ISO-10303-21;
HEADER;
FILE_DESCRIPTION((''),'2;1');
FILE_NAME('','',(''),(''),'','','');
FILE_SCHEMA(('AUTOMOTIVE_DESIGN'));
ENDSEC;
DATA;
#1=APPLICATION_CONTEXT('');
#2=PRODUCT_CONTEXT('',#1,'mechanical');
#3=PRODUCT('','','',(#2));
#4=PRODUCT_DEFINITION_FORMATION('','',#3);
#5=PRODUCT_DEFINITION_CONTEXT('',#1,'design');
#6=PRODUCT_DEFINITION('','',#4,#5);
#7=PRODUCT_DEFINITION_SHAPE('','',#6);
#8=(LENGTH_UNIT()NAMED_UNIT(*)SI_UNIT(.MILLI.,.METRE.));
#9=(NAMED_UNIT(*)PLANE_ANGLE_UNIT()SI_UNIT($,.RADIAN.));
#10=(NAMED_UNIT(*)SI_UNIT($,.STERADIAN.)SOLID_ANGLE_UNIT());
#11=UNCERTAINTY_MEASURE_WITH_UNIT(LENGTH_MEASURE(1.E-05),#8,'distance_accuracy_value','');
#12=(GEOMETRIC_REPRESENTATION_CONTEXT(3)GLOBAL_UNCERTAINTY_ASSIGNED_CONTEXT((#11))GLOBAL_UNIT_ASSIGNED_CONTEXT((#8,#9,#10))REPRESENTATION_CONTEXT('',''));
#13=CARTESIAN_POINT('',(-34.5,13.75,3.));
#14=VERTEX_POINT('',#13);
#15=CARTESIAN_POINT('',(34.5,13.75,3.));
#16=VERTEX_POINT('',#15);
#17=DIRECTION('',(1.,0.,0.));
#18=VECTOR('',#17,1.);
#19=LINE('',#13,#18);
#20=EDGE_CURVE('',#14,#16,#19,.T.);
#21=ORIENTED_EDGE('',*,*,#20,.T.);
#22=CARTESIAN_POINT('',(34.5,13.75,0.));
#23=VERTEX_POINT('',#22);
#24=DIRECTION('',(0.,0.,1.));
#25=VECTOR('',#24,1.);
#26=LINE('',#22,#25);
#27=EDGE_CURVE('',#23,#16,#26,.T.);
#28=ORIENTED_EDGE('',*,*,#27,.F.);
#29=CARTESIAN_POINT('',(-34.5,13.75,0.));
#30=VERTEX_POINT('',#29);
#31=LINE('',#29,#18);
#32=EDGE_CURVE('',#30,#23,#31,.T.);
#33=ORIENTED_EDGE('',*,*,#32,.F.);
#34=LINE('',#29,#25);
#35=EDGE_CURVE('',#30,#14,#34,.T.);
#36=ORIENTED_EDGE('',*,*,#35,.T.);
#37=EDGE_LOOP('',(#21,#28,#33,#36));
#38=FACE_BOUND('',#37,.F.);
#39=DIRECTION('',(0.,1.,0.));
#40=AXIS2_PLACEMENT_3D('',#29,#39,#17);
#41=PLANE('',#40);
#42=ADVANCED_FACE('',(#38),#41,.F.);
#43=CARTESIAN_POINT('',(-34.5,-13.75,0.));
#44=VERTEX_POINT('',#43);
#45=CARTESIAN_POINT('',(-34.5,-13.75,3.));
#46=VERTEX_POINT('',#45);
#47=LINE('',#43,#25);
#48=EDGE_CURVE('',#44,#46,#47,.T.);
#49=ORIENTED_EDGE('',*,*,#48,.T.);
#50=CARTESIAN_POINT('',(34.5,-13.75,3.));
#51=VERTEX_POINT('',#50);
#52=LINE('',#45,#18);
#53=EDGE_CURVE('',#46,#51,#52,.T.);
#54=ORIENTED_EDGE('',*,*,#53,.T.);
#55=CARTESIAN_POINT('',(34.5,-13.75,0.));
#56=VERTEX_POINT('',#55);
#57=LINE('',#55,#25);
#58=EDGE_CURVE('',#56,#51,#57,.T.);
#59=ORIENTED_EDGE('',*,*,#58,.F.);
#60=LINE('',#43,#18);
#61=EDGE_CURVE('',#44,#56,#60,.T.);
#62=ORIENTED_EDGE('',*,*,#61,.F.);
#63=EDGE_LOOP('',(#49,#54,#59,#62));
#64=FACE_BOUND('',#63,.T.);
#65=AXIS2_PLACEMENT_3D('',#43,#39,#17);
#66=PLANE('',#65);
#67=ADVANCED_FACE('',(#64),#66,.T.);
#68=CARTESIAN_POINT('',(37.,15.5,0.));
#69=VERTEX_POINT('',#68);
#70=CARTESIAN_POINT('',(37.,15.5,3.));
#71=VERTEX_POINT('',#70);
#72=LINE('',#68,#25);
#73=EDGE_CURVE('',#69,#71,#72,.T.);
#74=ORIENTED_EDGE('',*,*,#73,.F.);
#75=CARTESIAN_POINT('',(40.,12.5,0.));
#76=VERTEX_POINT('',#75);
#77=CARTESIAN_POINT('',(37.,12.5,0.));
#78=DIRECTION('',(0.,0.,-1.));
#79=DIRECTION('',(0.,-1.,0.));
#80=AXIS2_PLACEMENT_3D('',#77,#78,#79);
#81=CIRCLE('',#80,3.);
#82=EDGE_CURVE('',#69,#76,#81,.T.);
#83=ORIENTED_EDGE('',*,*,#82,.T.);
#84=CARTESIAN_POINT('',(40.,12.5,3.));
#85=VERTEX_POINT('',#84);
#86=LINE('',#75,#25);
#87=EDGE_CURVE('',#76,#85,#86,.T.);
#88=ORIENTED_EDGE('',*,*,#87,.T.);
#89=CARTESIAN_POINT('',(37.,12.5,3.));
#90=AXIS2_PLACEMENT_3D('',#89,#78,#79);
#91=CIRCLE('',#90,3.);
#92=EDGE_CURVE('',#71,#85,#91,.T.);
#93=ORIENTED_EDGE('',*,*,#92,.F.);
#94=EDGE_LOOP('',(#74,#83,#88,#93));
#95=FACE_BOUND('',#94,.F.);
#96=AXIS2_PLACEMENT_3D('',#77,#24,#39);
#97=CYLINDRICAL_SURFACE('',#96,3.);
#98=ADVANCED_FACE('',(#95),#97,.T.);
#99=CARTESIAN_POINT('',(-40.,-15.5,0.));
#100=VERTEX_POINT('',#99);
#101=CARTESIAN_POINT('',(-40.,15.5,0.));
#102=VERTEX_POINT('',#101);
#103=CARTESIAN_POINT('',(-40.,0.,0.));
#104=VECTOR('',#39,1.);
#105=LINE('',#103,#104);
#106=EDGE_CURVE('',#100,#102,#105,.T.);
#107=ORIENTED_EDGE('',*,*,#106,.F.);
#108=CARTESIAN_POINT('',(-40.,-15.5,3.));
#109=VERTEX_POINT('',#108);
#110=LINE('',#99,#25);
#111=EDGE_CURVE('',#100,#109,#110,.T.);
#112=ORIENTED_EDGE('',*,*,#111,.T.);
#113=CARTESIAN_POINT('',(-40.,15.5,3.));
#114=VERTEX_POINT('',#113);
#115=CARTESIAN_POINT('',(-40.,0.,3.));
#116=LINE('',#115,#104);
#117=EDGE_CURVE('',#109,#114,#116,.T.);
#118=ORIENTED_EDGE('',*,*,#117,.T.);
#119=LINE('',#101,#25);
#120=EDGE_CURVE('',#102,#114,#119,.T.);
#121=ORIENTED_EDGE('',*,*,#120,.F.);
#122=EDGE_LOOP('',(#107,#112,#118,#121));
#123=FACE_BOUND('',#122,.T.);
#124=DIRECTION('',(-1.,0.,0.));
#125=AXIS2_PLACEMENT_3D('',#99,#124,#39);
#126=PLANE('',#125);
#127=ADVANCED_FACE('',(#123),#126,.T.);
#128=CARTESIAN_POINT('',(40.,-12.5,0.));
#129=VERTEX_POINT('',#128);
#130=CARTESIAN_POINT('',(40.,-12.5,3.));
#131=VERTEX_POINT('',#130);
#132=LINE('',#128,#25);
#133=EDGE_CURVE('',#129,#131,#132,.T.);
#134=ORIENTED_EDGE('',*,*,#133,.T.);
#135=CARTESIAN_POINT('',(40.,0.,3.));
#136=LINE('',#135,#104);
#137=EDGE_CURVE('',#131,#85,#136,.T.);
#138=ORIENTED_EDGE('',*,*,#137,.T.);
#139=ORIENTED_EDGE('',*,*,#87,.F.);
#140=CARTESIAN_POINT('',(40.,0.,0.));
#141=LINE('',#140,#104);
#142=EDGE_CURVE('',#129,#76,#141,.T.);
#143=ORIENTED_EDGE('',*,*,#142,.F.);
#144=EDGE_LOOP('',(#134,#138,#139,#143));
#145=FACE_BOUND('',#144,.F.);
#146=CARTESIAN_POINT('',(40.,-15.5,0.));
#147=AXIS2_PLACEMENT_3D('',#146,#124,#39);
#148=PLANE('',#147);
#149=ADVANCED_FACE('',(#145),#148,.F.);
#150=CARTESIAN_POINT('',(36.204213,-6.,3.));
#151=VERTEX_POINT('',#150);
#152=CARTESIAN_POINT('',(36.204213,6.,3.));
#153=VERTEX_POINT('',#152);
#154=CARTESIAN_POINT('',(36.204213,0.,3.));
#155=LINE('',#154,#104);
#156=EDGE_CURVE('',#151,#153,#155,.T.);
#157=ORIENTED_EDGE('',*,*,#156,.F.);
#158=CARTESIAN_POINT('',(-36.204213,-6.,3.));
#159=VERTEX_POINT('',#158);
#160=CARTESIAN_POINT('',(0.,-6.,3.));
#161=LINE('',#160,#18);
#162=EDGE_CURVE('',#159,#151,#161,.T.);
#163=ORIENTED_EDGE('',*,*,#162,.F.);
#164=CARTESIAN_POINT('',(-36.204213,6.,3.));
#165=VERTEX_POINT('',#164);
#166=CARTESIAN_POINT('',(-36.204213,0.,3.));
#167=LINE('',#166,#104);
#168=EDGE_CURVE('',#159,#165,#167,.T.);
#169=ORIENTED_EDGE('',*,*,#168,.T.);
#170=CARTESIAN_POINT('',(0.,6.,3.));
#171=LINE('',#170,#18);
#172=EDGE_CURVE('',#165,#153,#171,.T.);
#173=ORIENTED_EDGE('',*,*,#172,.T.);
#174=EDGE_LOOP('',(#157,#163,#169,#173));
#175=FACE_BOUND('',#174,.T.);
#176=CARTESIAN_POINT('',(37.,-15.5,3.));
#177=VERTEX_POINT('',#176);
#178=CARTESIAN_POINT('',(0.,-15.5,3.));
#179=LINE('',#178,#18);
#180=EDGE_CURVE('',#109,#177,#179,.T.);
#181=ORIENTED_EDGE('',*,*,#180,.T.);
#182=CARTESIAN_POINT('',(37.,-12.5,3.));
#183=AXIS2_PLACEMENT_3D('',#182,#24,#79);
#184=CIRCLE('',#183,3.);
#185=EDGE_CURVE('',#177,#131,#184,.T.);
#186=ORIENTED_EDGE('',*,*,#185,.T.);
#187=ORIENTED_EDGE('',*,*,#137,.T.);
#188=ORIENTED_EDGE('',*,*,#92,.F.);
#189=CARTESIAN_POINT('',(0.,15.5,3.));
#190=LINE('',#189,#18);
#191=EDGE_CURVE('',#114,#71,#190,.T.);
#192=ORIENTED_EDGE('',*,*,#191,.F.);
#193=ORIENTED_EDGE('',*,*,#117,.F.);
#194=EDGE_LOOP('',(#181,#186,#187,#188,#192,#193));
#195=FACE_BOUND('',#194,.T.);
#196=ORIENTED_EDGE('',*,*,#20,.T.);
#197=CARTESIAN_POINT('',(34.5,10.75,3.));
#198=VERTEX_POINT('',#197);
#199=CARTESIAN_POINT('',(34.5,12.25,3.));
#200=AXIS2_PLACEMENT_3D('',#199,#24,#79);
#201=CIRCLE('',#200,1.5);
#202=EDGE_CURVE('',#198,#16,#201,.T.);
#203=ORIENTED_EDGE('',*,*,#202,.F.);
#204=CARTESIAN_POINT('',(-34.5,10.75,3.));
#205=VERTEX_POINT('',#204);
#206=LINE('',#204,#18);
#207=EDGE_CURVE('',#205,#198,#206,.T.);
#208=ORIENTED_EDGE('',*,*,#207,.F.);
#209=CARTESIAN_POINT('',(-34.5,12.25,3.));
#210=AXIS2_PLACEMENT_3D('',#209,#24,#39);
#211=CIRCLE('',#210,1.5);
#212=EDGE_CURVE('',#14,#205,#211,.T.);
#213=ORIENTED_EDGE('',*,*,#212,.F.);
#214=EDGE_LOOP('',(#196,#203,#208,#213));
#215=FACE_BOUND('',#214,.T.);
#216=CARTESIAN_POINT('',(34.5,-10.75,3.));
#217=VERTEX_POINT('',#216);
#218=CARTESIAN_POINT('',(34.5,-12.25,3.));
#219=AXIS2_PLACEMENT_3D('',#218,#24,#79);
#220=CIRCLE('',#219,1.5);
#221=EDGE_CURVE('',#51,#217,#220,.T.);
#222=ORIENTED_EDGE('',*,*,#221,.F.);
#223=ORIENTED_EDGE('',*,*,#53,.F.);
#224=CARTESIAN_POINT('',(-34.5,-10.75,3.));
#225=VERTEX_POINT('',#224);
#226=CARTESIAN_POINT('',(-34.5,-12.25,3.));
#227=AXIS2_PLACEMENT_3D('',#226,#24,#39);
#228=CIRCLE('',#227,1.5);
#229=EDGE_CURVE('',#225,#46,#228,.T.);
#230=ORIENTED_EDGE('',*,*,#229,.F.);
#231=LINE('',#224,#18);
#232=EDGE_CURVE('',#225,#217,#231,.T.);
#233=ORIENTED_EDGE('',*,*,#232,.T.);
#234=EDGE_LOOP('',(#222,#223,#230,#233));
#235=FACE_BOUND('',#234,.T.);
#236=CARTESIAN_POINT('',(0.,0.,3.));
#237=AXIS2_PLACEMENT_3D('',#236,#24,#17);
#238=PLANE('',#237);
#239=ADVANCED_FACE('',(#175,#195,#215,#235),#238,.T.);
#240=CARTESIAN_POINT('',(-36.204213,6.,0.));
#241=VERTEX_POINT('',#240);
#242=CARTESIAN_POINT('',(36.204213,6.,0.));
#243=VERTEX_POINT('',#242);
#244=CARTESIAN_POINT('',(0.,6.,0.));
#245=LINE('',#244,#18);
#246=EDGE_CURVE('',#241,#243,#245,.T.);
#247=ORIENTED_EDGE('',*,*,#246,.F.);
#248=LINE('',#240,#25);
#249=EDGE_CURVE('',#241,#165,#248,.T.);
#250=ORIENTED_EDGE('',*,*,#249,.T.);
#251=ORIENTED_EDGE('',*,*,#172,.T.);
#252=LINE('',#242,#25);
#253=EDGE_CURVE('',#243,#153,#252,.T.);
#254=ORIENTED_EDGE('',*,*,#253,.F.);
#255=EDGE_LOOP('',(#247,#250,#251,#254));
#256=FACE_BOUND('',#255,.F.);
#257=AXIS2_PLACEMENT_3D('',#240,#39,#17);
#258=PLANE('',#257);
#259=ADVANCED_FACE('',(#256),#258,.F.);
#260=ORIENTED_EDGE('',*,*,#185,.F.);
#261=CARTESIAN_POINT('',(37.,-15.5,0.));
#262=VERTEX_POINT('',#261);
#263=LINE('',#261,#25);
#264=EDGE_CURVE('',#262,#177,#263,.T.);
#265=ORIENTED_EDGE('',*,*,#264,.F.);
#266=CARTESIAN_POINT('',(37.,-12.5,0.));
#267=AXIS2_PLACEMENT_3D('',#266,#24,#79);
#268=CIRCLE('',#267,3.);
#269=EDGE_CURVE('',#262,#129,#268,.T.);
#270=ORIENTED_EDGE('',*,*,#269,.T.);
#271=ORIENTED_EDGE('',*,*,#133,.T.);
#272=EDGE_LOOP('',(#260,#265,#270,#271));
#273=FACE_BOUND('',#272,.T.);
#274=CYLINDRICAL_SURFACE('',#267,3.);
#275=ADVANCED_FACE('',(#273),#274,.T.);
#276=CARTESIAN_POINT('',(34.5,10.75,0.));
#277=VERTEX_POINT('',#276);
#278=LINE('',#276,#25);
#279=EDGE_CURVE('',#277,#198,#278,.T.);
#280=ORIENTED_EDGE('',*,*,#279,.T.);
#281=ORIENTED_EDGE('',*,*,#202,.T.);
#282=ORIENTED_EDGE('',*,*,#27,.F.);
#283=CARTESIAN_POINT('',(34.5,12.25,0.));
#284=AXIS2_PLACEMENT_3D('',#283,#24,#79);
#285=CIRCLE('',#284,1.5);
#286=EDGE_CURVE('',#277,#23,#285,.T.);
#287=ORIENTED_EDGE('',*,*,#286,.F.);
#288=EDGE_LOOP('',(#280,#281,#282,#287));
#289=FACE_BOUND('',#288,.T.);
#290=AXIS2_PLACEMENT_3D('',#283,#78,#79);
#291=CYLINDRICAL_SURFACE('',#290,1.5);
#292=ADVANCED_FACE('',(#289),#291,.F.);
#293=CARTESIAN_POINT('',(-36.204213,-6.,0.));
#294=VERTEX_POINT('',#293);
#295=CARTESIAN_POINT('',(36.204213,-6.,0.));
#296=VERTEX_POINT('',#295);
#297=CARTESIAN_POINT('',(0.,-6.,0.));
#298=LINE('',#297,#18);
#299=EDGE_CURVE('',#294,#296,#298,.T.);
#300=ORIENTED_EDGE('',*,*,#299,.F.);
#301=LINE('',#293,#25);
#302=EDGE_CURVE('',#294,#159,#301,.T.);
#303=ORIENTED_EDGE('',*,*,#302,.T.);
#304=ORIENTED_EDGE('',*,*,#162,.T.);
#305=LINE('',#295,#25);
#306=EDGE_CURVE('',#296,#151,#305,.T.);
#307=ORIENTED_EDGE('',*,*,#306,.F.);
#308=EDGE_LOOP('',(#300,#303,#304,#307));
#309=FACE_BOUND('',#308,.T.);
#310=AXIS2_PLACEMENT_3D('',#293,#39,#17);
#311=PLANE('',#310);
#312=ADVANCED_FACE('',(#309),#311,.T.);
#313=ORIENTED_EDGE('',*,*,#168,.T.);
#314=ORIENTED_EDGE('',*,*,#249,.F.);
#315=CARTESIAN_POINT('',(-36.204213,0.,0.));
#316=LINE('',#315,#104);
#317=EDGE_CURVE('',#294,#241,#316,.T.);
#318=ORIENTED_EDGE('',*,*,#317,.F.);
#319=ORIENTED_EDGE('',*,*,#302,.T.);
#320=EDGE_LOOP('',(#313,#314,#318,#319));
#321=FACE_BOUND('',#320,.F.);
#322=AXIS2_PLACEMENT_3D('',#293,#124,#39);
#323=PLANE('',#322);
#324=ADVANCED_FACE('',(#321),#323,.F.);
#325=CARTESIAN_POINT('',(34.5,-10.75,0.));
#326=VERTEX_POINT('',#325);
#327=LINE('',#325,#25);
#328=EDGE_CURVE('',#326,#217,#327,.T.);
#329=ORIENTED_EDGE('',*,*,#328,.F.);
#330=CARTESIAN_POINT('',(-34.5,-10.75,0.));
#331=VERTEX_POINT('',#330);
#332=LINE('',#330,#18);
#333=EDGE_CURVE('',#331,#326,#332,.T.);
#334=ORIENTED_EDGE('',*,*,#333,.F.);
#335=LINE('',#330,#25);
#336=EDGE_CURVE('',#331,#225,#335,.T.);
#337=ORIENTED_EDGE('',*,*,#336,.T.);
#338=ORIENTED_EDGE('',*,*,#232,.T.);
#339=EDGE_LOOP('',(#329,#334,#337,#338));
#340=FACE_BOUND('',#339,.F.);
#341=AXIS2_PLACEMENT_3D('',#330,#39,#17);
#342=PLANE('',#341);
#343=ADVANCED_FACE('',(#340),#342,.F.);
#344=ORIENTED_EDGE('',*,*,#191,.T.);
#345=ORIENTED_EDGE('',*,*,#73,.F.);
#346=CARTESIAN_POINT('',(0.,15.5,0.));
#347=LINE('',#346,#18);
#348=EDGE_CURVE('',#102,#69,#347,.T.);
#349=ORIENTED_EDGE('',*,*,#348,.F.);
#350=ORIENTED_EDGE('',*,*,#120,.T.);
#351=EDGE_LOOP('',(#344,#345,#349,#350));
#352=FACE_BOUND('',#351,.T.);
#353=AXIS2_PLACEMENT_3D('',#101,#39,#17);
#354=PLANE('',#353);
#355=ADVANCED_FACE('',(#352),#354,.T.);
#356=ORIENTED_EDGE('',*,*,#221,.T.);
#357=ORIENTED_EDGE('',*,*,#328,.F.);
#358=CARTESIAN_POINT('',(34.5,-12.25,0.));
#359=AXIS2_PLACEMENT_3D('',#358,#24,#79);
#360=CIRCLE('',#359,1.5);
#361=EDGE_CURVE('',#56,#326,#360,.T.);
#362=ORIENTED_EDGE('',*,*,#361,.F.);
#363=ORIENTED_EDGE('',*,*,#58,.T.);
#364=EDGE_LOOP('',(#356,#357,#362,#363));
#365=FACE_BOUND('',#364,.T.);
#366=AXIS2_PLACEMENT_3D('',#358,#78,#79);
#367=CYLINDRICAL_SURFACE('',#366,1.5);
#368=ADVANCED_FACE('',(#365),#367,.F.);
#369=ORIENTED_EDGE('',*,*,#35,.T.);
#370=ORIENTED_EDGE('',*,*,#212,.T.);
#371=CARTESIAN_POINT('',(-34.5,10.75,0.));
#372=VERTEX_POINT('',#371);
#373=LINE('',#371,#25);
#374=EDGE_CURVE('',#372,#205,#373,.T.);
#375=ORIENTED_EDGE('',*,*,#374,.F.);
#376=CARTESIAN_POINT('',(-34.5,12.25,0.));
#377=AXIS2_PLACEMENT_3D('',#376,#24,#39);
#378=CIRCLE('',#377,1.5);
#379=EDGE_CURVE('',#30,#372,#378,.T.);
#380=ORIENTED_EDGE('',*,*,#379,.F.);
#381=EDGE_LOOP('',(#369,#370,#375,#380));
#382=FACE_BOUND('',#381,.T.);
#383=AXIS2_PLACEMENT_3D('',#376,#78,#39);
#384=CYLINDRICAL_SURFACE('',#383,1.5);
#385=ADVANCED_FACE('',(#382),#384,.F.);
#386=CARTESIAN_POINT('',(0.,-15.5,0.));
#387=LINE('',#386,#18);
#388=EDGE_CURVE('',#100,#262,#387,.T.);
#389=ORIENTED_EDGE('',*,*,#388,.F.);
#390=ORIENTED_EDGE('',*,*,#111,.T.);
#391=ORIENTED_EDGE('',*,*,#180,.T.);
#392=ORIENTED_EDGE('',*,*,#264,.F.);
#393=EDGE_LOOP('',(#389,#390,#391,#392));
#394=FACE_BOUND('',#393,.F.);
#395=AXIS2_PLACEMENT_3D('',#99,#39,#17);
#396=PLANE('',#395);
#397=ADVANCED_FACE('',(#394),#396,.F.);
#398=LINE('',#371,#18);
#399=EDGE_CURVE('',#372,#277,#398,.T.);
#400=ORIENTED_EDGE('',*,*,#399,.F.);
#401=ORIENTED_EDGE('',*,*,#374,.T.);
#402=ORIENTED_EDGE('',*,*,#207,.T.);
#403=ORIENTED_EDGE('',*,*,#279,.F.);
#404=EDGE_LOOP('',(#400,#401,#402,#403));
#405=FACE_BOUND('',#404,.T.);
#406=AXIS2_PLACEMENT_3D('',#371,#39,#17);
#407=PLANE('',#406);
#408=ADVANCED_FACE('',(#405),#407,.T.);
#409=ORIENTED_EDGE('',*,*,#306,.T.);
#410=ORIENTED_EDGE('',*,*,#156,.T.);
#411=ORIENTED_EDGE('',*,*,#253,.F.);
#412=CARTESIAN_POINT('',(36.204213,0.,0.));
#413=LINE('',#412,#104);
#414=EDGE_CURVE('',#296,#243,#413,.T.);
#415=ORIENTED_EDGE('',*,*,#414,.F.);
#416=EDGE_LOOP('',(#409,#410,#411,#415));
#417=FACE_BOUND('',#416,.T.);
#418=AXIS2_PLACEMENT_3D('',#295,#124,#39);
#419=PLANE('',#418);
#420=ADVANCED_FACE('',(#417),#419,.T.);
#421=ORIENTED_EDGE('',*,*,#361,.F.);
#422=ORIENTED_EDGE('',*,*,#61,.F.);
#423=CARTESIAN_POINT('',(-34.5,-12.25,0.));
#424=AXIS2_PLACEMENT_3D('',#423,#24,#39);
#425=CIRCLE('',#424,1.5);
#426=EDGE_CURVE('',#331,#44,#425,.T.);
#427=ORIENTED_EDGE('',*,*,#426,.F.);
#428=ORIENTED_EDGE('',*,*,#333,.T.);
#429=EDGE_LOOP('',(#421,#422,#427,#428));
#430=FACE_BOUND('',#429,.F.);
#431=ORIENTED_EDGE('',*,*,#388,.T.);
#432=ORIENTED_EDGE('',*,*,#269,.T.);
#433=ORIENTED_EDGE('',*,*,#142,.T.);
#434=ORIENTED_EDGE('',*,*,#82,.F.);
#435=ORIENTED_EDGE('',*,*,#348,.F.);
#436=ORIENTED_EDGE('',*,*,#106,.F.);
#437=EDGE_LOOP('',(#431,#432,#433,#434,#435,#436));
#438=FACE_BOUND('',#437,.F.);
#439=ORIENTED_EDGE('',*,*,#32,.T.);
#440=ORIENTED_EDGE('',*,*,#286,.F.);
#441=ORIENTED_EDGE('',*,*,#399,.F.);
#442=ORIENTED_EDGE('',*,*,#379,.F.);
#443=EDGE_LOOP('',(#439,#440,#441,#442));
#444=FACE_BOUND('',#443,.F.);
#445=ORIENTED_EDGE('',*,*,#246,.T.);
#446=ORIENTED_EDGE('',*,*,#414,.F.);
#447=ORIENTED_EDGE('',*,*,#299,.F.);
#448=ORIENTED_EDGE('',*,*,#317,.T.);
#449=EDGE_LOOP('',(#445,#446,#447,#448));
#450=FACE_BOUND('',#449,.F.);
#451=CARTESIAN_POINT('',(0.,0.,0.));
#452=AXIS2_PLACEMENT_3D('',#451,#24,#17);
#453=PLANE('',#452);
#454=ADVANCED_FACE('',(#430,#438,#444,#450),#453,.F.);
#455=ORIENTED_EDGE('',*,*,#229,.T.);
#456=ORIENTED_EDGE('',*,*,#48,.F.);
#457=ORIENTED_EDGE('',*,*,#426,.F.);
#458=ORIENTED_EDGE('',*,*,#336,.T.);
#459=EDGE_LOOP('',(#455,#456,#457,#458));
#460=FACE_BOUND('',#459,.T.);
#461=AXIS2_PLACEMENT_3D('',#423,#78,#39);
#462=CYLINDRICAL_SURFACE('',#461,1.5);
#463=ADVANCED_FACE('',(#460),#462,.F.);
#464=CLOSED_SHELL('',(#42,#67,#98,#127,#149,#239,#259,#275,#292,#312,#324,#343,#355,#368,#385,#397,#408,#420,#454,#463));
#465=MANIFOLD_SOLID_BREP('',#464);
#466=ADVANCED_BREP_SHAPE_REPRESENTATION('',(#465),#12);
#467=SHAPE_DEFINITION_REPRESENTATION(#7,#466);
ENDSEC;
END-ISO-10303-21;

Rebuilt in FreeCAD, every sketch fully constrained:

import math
import FreeCAD as App
import Part
import Sketcher
from FreeCAD import Vector


def edges_at(feature, points):
    """Names of the edges that pass closest to the given points."""
    edges = feature.Shape.Edges
    near = lambda p: min(range(len(edges)), key=lambda i: edges[i].distToShape(Part.Vertex(*p))[0])
    return sorted({f"Edge{near(p) + 1}" for p in points})


def add_polygon(sketch, points):
    """Adds a closed chain of lines whose ends are joined by coincident constraints."""
    first, n = sketch.GeometryCount, len(points)
    for a, b in zip(points, points[1:] + points[:1]):
        sketch.addGeometry(Part.LineSegment(App.Vector(*a, 0), App.Vector(*b, 0)), False)
    for i in range(n):
        sketch.addConstraint(Sketcher.Constraint("Coincident", first + i, 2, first + (i + 1) % n, 1))

doc = App.newDocument("Part")
body = doc.addObject("PartDesign::Body", "Body")

# Sketch on XY plane
sketch1 = body.newObject("Sketcher::SketchObject", "Sketch")
sketch1.AttachmentSupport = (doc.getObject("XY_Plane"), [""])
sketch1.MapMode = "FlatFace"
add_polygon(sketch1, [(-40, 15.5), (-40, -15.5), (40, -15.5), (40, 15.5)])  # lines 0-3
sketch1.addGeometry(Part.ArcOfCircle(Part.Circle(Vector(-34.5, -12.2, 0), Vector(0, 0, 1), 1.5), math.radians(90), math.radians(270)), False)  # 4
sketch1.addGeometry(Part.LineSegment(Vector(-34.5, -10.8, 0), Vector(34.5, -10.8, 0)), False)  # 5
sketch1.addGeometry(Part.ArcOfCircle(Part.Circle(Vector(34.5, -12.2, 0), Vector(0, 0, 1), 1.5), math.radians(-90), math.radians(90)), False)  # 6
sketch1.addGeometry(Part.LineSegment(Vector(34.5, -13.8, 0), Vector(-34.5, -13.8, 0)), False)  # 7
add_polygon(sketch1, [(36.2, -6), (-36.2, -6), (-36.2, 6), (36.2, 6)])  # lines 8-11
sketch1.addGeometry(Part.ArcOfCircle(Part.Circle(Vector(-34.5, 12.2, 0), Vector(0, 0, 1), 1.5), math.radians(90), math.radians(270)), False)  # 12
sketch1.addGeometry(Part.LineSegment(Vector(-34.5, 13.8, 0), Vector(34.5, 13.8, 0)), False)  # 13
sketch1.addGeometry(Part.ArcOfCircle(Part.Circle(Vector(34.5, 12.2, 0), Vector(0, 0, 1), 1.5), math.radians(-90), math.radians(90)), False)  # 14
sketch1.addGeometry(Part.LineSegment(Vector(34.5, 10.8, 0), Vector(-34.5, 10.8, 0)), False)  # 15
sketch1.addConstraint([
    Sketcher.Constraint("Tangent", 4, 1, 5, 1),
    Sketcher.Constraint("Tangent", 5, 2, 6, 2),
    Sketcher.Constraint("Tangent", 6, 1, 7, 1),
    Sketcher.Constraint("Tangent", 7, 2, 4, 2),
    Sketcher.Constraint("Tangent", 12, 1, 13, 1),
    Sketcher.Constraint("Tangent", 13, 2, 14, 2),
    Sketcher.Constraint("Tangent", 14, 1, 15, 1),
    Sketcher.Constraint("Tangent", 15, 2, 12, 2),
    Sketcher.Constraint("Vertical", 0),
    Sketcher.Constraint("Horizontal", 1),
    Sketcher.Constraint("Vertical", 2),
    Sketcher.Constraint("Horizontal", 3),
    Sketcher.Constraint("Horizontal", 5),
    Sketcher.Constraint("Horizontal", 7),
    Sketcher.Constraint("Horizontal", 8),
    Sketcher.Constraint("Vertical", 9),
    Sketcher.Constraint("Horizontal", 10),
    Sketcher.Constraint("Vertical", 11),
    Sketcher.Constraint("Horizontal", 13),
    Sketcher.Constraint("Horizontal", 15),
    Sketcher.Constraint("Equal", 6, 12),
    Sketcher.Constraint("Symmetric", 6, 3, 12, 3, -1, 1),
    Sketcher.Constraint("Symmetric", 0, 2, 2, 2, -1, 1),
    Sketcher.Constraint("Symmetric", 8, 2, 10, 2, -1, 1),
    Sketcher.Constraint("Vertical", 4, 3, 12, 3),
    Sketcher.Constraint("Vertical", 6, 3, 14, 3),
    Sketcher.Constraint("Radius", 4, 1.5),
    Sketcher.Constraint("DistanceX", 1, 1, 1, 2, 80.0),
    Sketcher.Constraint("DistanceX", 5, 1, 5, 2, 69.0),
    Sketcher.Constraint("DistanceY", 0, 2, 0, 1, 31.0),
    Sketcher.Constraint("DistanceY", 9, 1, 9, 2, 12.0),
    Sketcher.Constraint("DistanceY", 4, 1, 12, 3, 23.0),
    Sketcher.Constraint("DistanceX", 8, 2, 8, 1, 72.408426),
])
pad1 = body.newObject("PartDesign::Pad", "Pad")
pad1.Profile = sketch1
pad1.Length = 3
doc.recompute()

fillet = body.newObject("PartDesign::Fillet", "Fillet")
fillet.Base = (pad1, edges_at(pad1, [(40, 15.5, 1.5), (40, -15.5, 1.5)]))
fillet.Radius = 3

doc.recompute()
